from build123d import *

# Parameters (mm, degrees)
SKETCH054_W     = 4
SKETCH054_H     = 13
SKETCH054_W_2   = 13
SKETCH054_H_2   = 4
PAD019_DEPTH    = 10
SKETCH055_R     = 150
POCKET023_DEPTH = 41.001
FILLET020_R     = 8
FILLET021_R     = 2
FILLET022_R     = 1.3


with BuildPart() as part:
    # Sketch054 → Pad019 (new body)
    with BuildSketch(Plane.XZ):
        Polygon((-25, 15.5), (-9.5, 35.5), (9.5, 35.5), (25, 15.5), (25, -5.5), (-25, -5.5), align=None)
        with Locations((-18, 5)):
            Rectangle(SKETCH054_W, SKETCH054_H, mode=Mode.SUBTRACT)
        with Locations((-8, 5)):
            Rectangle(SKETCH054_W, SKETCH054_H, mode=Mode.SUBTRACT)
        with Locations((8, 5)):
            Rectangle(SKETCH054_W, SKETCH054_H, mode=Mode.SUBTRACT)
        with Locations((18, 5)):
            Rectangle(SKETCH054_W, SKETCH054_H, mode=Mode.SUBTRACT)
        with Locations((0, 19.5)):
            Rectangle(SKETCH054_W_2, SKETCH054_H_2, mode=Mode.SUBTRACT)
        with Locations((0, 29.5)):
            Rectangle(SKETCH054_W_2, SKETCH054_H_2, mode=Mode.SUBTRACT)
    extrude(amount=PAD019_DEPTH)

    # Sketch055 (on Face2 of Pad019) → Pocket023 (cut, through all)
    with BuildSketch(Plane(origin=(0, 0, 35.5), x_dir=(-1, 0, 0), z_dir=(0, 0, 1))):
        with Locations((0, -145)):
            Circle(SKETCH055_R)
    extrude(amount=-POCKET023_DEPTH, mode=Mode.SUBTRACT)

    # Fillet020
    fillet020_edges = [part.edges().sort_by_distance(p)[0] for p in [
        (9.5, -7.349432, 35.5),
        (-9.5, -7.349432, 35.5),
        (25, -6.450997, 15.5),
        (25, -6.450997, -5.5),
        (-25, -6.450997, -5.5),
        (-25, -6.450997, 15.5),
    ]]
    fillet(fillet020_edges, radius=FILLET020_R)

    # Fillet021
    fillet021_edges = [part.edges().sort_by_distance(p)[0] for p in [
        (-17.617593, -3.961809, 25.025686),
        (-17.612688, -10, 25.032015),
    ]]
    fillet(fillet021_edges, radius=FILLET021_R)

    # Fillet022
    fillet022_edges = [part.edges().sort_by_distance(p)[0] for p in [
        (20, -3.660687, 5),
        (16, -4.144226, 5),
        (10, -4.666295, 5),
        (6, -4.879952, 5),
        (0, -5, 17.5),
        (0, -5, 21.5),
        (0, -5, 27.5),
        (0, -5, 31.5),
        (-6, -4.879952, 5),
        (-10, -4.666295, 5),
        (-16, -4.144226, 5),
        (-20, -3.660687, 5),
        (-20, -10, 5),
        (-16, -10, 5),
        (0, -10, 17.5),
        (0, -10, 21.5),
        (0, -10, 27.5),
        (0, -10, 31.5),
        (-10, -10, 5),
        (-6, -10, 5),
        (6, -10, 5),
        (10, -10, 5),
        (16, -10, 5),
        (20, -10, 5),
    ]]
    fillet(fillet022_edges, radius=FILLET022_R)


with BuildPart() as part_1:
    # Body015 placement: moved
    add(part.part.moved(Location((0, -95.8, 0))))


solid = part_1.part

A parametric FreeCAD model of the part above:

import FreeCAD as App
import Part
import Sketcher
from FreeCAD import Vector


def edges_at(feature, points):
    """Names of the edges that pass closest to the given points."""
    edges = feature.Shape.Edges
    near = lambda p: min(range(len(edges)), key=lambda i: edges[i].distToShape(Part.Vertex(*p))[0])
    return sorted({f"Edge{near(p) + 1}" for p in points})

doc = App.newDocument("Part")
body = doc.addObject("PartDesign::Body", "Body")

# Sketch on XZ plane
sketch1 = body.newObject("Sketcher::SketchObject", "Sketch")
sketch1.AttachmentSupport = (doc.getObject("XZ_Plane"), [""])
sketch1.MapMode = "FlatFace"
sketch1.addGeometry(Part.LineSegment(Vector(-9.5, 35.5, 0), Vector(-25, 15.5, 0)), False)
sketch1.addGeometry(Part.LineSegment(Vector(-25, 15.5, 0), Vector(-25, -5.5, 0)), False)
sketch1.addGeometry(Part.LineSegment(Vector(-25, -5.5, 0), Vector(25, -5.5, 0)), False)
sketch1.addGeometry(Part.LineSegment(Vector(25, -5.5, 0), Vector(25, 15.5, 0)), False)
sketch1.addGeometry(Part.LineSegment(Vector(25, 15.5, 0), Vector(9.5, 35.5, 0)), False)
sketch1.addGeometry(Part.LineSegment(Vector(9.5, 35.5, 0), Vector(-9.5, 35.5, 0)), False)
sketch1.addGeometry(Part.LineSegment(Vector(16, -1.5, 0), Vector(16, 11.5, 0)), False)
sketch1.addGeometry(Part.LineSegment(Vector(16, 11.5, 0), Vector(20, 11.5, 0)), False)
sketch1.addGeometry(Part.LineSegment(Vector(20, 11.5, 0), Vector(20, -1.5, 0)), False)
sketch1.addGeometry(Part.LineSegment(Vector(20, -1.5, 0), Vector(16, -1.5, 0)), False)
sketch1.addGeometry(Part.LineSegment(Vector(6, -1.5, 0), Vector(6, 11.5, 0)), False)
sketch1.addGeometry(Part.LineSegment(Vector(6, 11.5, 0), Vector(10, 11.5, 0)), False)
sketch1.addGeometry(Part.LineSegment(Vector(10, 11.5, 0), Vector(10, -1.5, 0)), False)
sketch1.addGeometry(Part.LineSegment(Vector(10, -1.5, 0), Vector(6, -1.5, 0)), False)
sketch1.addGeometry(Part.LineSegment(Vector(-10, -1.5, 0), Vector(-10, 11.5, 0)), False)
sketch1.addGeometry(Part.LineSegment(Vector(-10, 11.5, 0), Vector(-6, 11.5, 0)), False)
sketch1.addGeometry(Part.LineSegment(Vector(-6, 11.5, 0), Vector(-6, -1.5, 0)), False)
sketch1.addGeometry(Part.LineSegment(Vector(-6, -1.5, 0), Vector(-10, -1.5, 0)), False)
sketch1.addGeometry(Part.LineSegment(Vector(-20, -1.5, 0), Vector(-20, 11.5, 0)), False)
sketch1.addGeometry(Part.LineSegment(Vector(-20, 11.5, 0), Vector(-16, 11.5, 0)), False)
sketch1.addGeometry(Part.LineSegment(Vector(-16, 11.5, 0), Vector(-16, -1.5, 0)), False)
sketch1.addGeometry(Part.LineSegment(Vector(-16, -1.5, 0), Vector(-20, -1.5, 0)), False)
sketch1.addGeometry(Part.LineSegment(Vector(-6.5, 17.5, 0), Vector(-6.5, 21.5, 0)), False)
sketch1.addGeometry(Part.LineSegment(Vector(-6.5, 21.5, 0), Vector(6.5, 21.5, 0)), False)
sketch1.addGeometry(Part.LineSegment(Vector(6.5, 21.5, 0), Vector(6.5, 17.5, 0)), False)
sketch1.addGeometry(Part.LineSegment(Vector(6.5, 17.5, 0), Vector(-6.5, 17.5, 0)), False)
sketch1.addGeometry(Part.LineSegment(Vector(-6.5, 27.5, 0), Vector(-6.5, 31.5, 0)), False)
sketch1.addGeometry(Part.LineSegment(Vector(-6.5, 31.5, 0), Vector(6.5, 31.5, 0)), False)
sketch1.addGeometry(Part.LineSegment(Vector(6.5, 31.5, 0), Vector(6.5, 27.5, 0)), False)
sketch1.addGeometry(Part.LineSegment(Vector(6.5, 27.5, 0), Vector(-6.5, 27.5, 0)), False)
sketch1.addConstraint(Sketcher.Constraint("Coincident", 0, 2, 1, 1))
sketch1.addConstraint(Sketcher.Constraint("Coincident", 1, 2, 2, 1))
sketch1.addConstraint(Sketcher.Constraint("Coincident", 2, 2, 3, 1))
sketch1.addConstraint(Sketcher.Constraint("Coincident", 3, 2, 4, 1))
sketch1.addConstraint(Sketcher.Constraint("Coincident", 4, 2, 5, 1))
sketch1.addConstraint(Sketcher.Constraint("Coincident", 5, 2, 0, 1))
sketch1.addConstraint(Sketcher.Constraint("Coincident", 6, 2, 7, 1))
sketch1.addConstraint(Sketcher.Constraint("Coincident", 7, 2, 8, 1))
sketch1.addConstraint(Sketcher.Constraint("Coincident", 8, 2, 9, 1))
sketch1.addConstraint(Sketcher.Constraint("Coincident", 9, 2, 6, 1))
sketch1.addConstraint(Sketcher.Constraint("Coincident", 10, 2, 11, 1))
sketch1.addConstraint(Sketcher.Constraint("Coincident", 11, 2, 12, 1))
sketch1.addConstraint(Sketcher.Constraint("Coincident", 12, 2, 13, 1))
sketch1.addConstraint(Sketcher.Constraint("Coincident", 13, 2, 10, 1))
sketch1.addConstraint(Sketcher.Constraint("Coincident", 14, 2, 15, 1))
sketch1.addConstraint(Sketcher.Constraint("Coincident", 15, 2, 16, 1))
sketch1.addConstraint(Sketcher.Constraint("Coincident", 16, 2, 17, 1))
sketch1.addConstraint(Sketcher.Constraint("Coincident", 17, 2, 14, 1))
sketch1.addConstraint(Sketcher.Constraint("Coincident", 18, 2, 19, 1))
sketch1.addConstraint(Sketcher.Constraint("Coincident", 19, 2, 20, 1))
sketch1.addConstraint(Sketcher.Constraint("Coincident", 20, 2, 21, 1))
sketch1.addConstraint(Sketcher.Constraint("Coincident", 21, 2, 18, 1))
sketch1.addConstraint(Sketcher.Constraint("Coincident", 22, 2, 23, 1))
sketch1.addConstraint(Sketcher.Constraint("Coincident", 23, 2, 24, 1))
sketch1.addConstraint(Sketcher.Constraint("Coincident", 24, 2, 25, 1))
sketch1.addConstraint(Sketcher.Constraint("Coincident", 25, 2, 22, 1))
sketch1.addConstraint(Sketcher.Constraint("Coincident", 26, 2, 27, 1))
sketch1.addConstraint(Sketcher.Constraint("Coincident", 27, 2, 28, 1))
sketch1.addConstraint(Sketcher.Constraint("Coincident", 28, 2, 29, 1))
sketch1.addConstraint(Sketcher.Constraint("Coincident", 29, 2, 26, 1))
sketch1.addConstraint(Sketcher.Constraint("Vertical", 1))
sketch1.addConstraint(Sketcher.Constraint("Horizontal", 2))
sketch1.addConstraint(Sketcher.Constraint("Vertical", 3))
sketch1.addConstraint(Sketcher.Constraint("Horizontal", 5))
sketch1.addConstraint(Sketcher.Constraint("Vertical", 6))
sketch1.addConstraint(Sketcher.Constraint("Horizontal", 7))
sketch1.addConstraint(Sketcher.Constraint("Vertical", 8))
sketch1.addConstraint(Sketcher.Constraint("Horizontal", 9))
sketch1.addConstraint(Sketcher.Constraint("Vertical", 10))
sketch1.addConstraint(Sketcher.Constraint("Horizontal", 11))
sketch1.addConstraint(Sketcher.Constraint("Vertical", 12))
sketch1.addConstraint(Sketcher.Constraint("Horizontal", 13))
sketch1.addConstraint(Sketcher.Constraint("Vertical", 14))
sketch1.addConstraint(Sketcher.Constraint("Horizontal", 15))
sketch1.addConstraint(Sketcher.Constraint("Vertical", 16))
sketch1.addConstraint(Sketcher.Constraint("Horizontal", 17))
sketch1.addConstraint(Sketcher.Constraint("Vertical", 18))
sketch1.addConstraint(Sketcher.Constraint("Horizontal", 19))
sketch1.addConstraint(Sketcher.Constraint("Vertical", 20))
sketch1.addConstraint(Sketcher.Constraint("Horizontal", 21))
sketch1.addConstraint(Sketcher.Constraint("Vertical", 22))
sketch1.addConstraint(Sketcher.Constraint("Horizontal", 23))
sketch1.addConstraint(Sketcher.Constraint("Vertical", 24))
sketch1.addConstraint(Sketcher.Constraint("Horizontal", 25))
sketch1.addConstraint(Sketcher.Constraint("Vertical", 26))
sketch1.addConstraint(Sketcher.Constraint("Horizontal", 27))
sketch1.addConstraint(Sketcher.Constraint("Vertical", 28))
sketch1.addConstraint(Sketcher.Constraint("Horizontal", 29))
sketch1.addConstraint(Sketcher.Constraint("Symmetric", 0, 2, 3, 2, -2))
sketch1.addConstraint(Sketcher.Constraint("Symmetric", 11, 2, 14, 2, -2))
sketch1.addConstraint(Sketcher.Constraint("Symmetric", 13, 2, 16, 2, -2))
sketch1.addConstraint(Sketcher.Constraint("Symmetric", 7, 2, 18, 2, -2))
sketch1.addConstraint(Sketcher.Constraint("Symmetric", 9, 2, 20, 2, -2))
sketch1.addConstraint(Sketcher.Constraint("Horizontal", 7, 2, 10, 2))
sketch1.addConstraint(Sketcher.Constraint("Horizontal", 9, 2, 12, 2))
sketch1.addConstraint(Sketcher.Constraint("Vertical", 25, 2, 26, 2))
sketch1.addConstraint(Sketcher.Constraint("Vertical", 24, 2, 27, 2))
sketch1.addConstraint(Sketcher.Constraint("Equal", 9, 11))
sketch1.addConstraint(Sketcher.Constraint("Equal", 29, 6))
sketch1.addConstraint(Sketcher.Constraint("Equal", 21, 22))
sketch1.addConstraint(Sketcher.Constraint("Equal", 24, 26))
sketch1.addConstraint(Sketcher.Constraint("Equal", 0, 4))
sketch1.addConstraint(Sketcher.Constraint("DistanceX", 2, 1, 2, 2, 50.0))
sketch1.addConstraint(Sketcher.Constraint("DistanceX", 5, 2, 5, 1, 19.0))
sketch1.addConstraint(Sketcher.Constraint("DistanceX", 7, 1, 7, 2, 4.0))
sketch1.addConstraint(Sketcher.Constraint("DistanceX", 23, 1, 23, 2, 13.0))
sketch1.addConstraint(Sketcher.Constraint("DistanceY", 1, 2, 1, 1, 21.0))
sketch1.addConstraint(Sketcher.Constraint("DistanceX", -1, 1, 6, 2, 16.0))
sketch1.addConstraint(Sketcher.Constraint("DistanceX", -1, 1, 10, 2, 6.0))
sketch1.addConstraint(Sketcher.Constraint("DistanceY", 3, 2, 4, 2, 20.0))
sketch1.addConstraint(Sketcher.Constraint("DistanceY", 6, 2, 3, 2, 4.0))
sketch1.addConstraint(Sketcher.Constraint("DistanceY", 15, 2, 22, 2, 10.0))
sketch1.addConstraint(Sketcher.Constraint("DistanceX", 5, 2, 22, 2, 3.0))
sketch1.addConstraint(Sketcher.Constraint("DistanceY", 26, 2, 5, 2, 4.0))
sketch1.addConstraint(Sketcher.Constraint("DistanceY", -1, 1, 0, 2, 15.5))
pad1 = body.newObject("PartDesign::Pad", "Pad")
pad1.Profile = sketch1
pad1.Length = 10

# Sketch on XY plane
sketch2 = body.newObject("Sketcher::SketchObject", "Sketch001")
sketch2.AttachmentSupport = (doc.getObject("XY_Plane"), [""])
sketch2.MapMode = "FlatFace"
sketch2.AttachmentOffset = App.Placement(Vector(0, 0, 35.5), App.Rotation())
sketch2.addGeometry(Part.Circle(Vector(0, 145, 0), Vector(0, 0, 1), 150), False)
sketch2.addConstraint(Sketcher.Constraint("PointOnObject", 0, 3, -2))
sketch2.addConstraint(Sketcher.Constraint("Diameter", 0, 300.0))
sketch2.addConstraint(Sketcher.Constraint("DistanceY", -1, 1, 0, 3, 145.0))
pocket1 = body.newObject("PartDesign::Pocket", "Pocket")
pocket1.Profile = sketch2
pocket1.Type = "ThroughAll"
doc.recompute()

fillet = body.newObject("PartDesign::Fillet", "Fillet")
fillet.Base = (pocket1, edges_at(pocket1, [
    (9.5, -7.349, 35.5),
    (-9.5, -7.349, 35.5),
    (25, -6.451, 15.5),
    (25, -6.451, -5.5),
    (-25, -6.451, -5.5),
    (-25, -6.451, 15.5),
]))
fillet.Radius = 8
doc.recompute()

fillet2 = body.newObject("PartDesign::Fillet", "Fillet001")
fillet2.Base = (fillet, edges_at(fillet, [(-17.618, -3.962, 25.026), (-17.613, -10, 25.032)]))
fillet2.Radius = 2
doc.recompute()

fillet3 = body.newObject("PartDesign::Fillet", "Fillet002")
fillet3.Base = (fillet2, edges_at(fillet2, [
    (20, -3.661, 5),
    (16, -4.144, 5),
    (10, -4.666, 5),
    (6, -4.88, 5),
    (0, -5, 17.5),
    (0, -5, 21.5),
    (0, -5, 27.5),
    (0, -5, 31.5),
    (-6, -4.88, 5),
    (-10, -4.666, 5),
    (-16, -4.144, 5),
    (-20, -3.661, 5),
    (-20, -10, 5),
    (-16, -10, 5),
    (0, -10, 17.5),
    (0, -10, 21.5),
    (0, -10, 27.5),
    (0, -10, 31.5),
    (-10, -10, 5),
    (-6, -10, 5),
    (6, -10, 5),
    (10, -10, 5),
    (16, -10, 5),
    (20, -10, 5),
]))
fillet3.Radius = 1.3
body2 = doc.addObject("PartDesign::Body", "Body001")
doc.recompute()

body.Placement = App.Placement(Vector(0, -95.8, 0), App.Rotation(Vector(0, 0, 1), 0))
boolean = body2.newObject("PartDesign::Boolean", "Boolean")
boolean.Type = "Fuse"
boolean.addObjects([body])

doc.recompute()
